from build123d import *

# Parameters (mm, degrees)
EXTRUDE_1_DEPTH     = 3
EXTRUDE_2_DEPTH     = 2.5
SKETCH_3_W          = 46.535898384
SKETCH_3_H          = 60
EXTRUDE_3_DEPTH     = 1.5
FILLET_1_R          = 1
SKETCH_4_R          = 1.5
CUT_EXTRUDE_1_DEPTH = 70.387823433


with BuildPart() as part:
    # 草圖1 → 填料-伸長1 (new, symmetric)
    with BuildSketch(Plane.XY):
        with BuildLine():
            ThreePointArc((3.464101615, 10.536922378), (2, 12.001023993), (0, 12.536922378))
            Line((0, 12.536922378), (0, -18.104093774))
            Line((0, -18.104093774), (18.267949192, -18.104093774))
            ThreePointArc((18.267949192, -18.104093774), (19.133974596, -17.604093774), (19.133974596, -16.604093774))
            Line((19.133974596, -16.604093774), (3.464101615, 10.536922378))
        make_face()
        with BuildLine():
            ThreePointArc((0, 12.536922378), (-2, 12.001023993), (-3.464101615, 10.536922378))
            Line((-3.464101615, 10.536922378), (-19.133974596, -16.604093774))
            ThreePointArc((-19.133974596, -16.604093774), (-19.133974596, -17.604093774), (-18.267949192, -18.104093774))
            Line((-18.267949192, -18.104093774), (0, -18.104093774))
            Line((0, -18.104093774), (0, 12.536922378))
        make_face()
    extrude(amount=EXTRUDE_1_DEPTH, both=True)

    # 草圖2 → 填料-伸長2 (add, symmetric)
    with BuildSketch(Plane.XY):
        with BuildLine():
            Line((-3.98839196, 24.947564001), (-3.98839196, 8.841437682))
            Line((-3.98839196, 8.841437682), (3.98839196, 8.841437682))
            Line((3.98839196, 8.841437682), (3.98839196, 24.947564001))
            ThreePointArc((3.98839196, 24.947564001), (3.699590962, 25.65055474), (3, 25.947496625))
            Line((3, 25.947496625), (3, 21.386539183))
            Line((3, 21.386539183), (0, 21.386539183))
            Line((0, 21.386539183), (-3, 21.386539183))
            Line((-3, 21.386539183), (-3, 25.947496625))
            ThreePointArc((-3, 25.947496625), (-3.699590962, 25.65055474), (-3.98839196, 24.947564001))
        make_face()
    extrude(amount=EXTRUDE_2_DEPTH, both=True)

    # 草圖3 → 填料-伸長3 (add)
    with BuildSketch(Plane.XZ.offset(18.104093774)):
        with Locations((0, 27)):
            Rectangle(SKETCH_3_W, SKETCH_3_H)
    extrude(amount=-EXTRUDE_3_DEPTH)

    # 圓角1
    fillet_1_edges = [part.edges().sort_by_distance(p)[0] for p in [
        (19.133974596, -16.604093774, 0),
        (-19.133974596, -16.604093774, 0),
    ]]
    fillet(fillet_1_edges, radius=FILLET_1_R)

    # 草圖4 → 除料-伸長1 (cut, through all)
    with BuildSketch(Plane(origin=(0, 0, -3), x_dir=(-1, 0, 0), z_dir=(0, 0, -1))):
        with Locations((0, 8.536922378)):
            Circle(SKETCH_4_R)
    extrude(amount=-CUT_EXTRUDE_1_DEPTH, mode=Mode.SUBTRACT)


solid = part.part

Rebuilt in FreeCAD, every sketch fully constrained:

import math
import FreeCAD as App
import Part
import Sketcher
from FreeCAD import Vector
Q = App.Units.Quantity


def edges_at(feature, points):
    """Names of the edges that pass closest to the given points."""
    edges = feature.Shape.Edges
    near = lambda p: min(range(len(edges)), key=lambda i: edges[i].distToShape(Part.Vertex(*p))[0])
    return sorted({f"Edge{near(p) + 1}" for p in points})


def add_polygon(sketch, points):
    """Adds a closed chain of lines whose ends are joined by coincident constraints."""
    first, n = sketch.GeometryCount, len(points)
    for a, b in zip(points, points[1:] + points[:1]):
        sketch.addGeometry(Part.LineSegment(App.Vector(*a, 0), App.Vector(*b, 0)), False)
    for i in range(n):
        sketch.addConstraint(Sketcher.Constraint("Coincident", first + i, 2, first + (i + 1) % n, 1))

doc = App.newDocument("Part")
body = doc.addObject("PartDesign::Body", "Body")

sketch1 = doc.addObject("Sketcher::SketchObject", "Sketch")
body.addObject(sketch1)
sketch1.AttachmentSupport = (doc.XY_Plane, [""])
sketch1.MapMode = "FlatFace"
sketch1.addGeometry([
    Part.ArcOfCircle(Part.Circle(Vector(0, 8.5, 0), Vector(0, 0, 1), 4), math.radians(30), math.radians(90)),
    Part.ArcOfCircle(Part.Circle(Vector(0, 8.5, 0), Vector(0, 0, 1), 4), math.radians(90), math.radians(150)),
    Part.LineSegment(Vector(-3.5, 10.5, 0), Vector(-19.1, -16.6, 0)),
    Part.ArcOfCircle(Part.Circle(Vector(-18.3, -17.1, 0), Vector(0, 0, 1), 1), math.radians(150), math.radians(270)),
    Part.LineSegment(Vector(-18.3, -18.1, 0), Vector(18.3, -18.1, 0)),
    Part.ArcOfCircle(Part.Circle(Vector(18.3, -17.1, 0), Vector(0, 0, 1), 1), math.radians(-90), math.radians(30)),
    Part.LineSegment(Vector(19.1, -16.6, 0), Vector(3.5, 10.5, 0)),
], False)
sketch1.addConstraint([
    Sketcher.Constraint("Tangent", 0, 2, 1, 1),
    Sketcher.Constraint("Tangent", 1, 2, 2, 1),
    Sketcher.Constraint("Tangent", 2, 2, 3, 1),
    Sketcher.Constraint("Tangent", 3, 2, 4, 1),
    Sketcher.Constraint("Tangent", 4, 2, 5, 1),
    Sketcher.Constraint("Tangent", 5, 2, 6, 1),
    Sketcher.Constraint("Tangent", 6, 2, 0, 1),
    Sketcher.Constraint("Horizontal", 4),
    Sketcher.Constraint("Equal", 0, 1),
    Sketcher.Constraint("Equal", 3, 5),
    Sketcher.Constraint("Symmetric", 2, 2, 5, 2, -2),
    Sketcher.Constraint("PointOnObject", 0, 2, -2),
    Sketcher.Constraint("Radius", 0, 4.0),
    Sketcher.Constraint("Radius", 3, 1.0),
    Sketcher.Constraint("Angle", 2, Q("-120 deg")),
    Sketcher.Constraint("DistanceX", 4, 1, 4, 2, 36.535898),
    Sketcher.Constraint("DistanceY", -1, 1, 0, 3, 8.536922),
])
pad1 = doc.addObject("PartDesign::Pad", "Pad")
body.addObject(pad1)
pad1.Profile = sketch1
pad1.Length = 6
pad1.Midplane = True

sketch2 = doc.addObject("Sketcher::SketchObject", "Sketch001")
body.addObject(sketch2)
sketch2.AttachmentSupport = (doc.XY_Plane, [""])
sketch2.MapMode = "FlatFace"
sketch2.addGeometry([
    Part.LineSegment(Vector(-4, 24.9, 0), Vector(-4, 8.8, 0)),
    Part.LineSegment(Vector(-4, 8.8, 0), Vector(4, 8.8, 0)),
    Part.LineSegment(Vector(4, 8.8, 0), Vector(4, 24.9, 0)),
    Part.ArcOfCircle(Part.Circle(Vector(3, 24.9, 0), Vector(0, 0, 1), 1), math.radians(0), math.radians(89)),
    Part.LineSegment(Vector(3, 25.9, 0), Vector(3, 21.4, 0)),
    Part.LineSegment(Vector(3, 21.4, 0), Vector(-3, 21.4, 0)),
    Part.LineSegment(Vector(-3, 21.4, 0), Vector(-3, 25.9, 0)),
    Part.ArcOfCircle(Part.Circle(Vector(-3, 24.9, 0), Vector(0, 0, 1), 1), math.radians(91), math.radians(180)),
], False)
sketch2.addConstraint([
    Sketcher.Constraint("Coincident", 0, 2, 1, 1),
    Sketcher.Constraint("Coincident", 1, 2, 2, 1),
    Sketcher.Constraint("Tangent", 2, 2, 3, 1),
    Sketcher.Constraint("Coincident", 3, 2, 4, 1),
    Sketcher.Constraint("Coincident", 4, 2, 5, 1),
    Sketcher.Constraint("Coincident", 5, 2, 6, 1),
    Sketcher.Constraint("Coincident", 6, 2, 7, 1),
    Sketcher.Constraint("Tangent", 7, 2, 0, 1),
    Sketcher.Constraint("Vertical", 0),
    Sketcher.Constraint("Horizontal", 1),
    Sketcher.Constraint("Vertical", 2),
    Sketcher.Constraint("Vertical", 4),
    Sketcher.Constraint("Horizontal", 5),
    Sketcher.Constraint("Vertical", 6),
    Sketcher.Constraint("Equal", 3, 7),
    Sketcher.Constraint("Symmetric", 3, 3, 7, 3, -2),
    Sketcher.Constraint("Horizontal", 3, 2, 6, 2),
    Sketcher.Constraint("Radius", 3, 1.0),
    Sketcher.Constraint("DistanceX", 5, 2, 5, 1, 6.0),
    Sketcher.Constraint("DistanceY", 1, 2, 4, 2, 12.545102),
    Sketcher.Constraint("DistanceX", 1, 1, 1, 2, 7.976784),
    Sketcher.Constraint("DistanceY", 0, 2, 0, 1, 16.106126),
    Sketcher.Constraint("DistanceY", -1, 1, 4, 2, 21.386539),
])
pad2 = doc.addObject("PartDesign::Pad", "Pad001")
body.addObject(pad2)
pad2.Profile = sketch2
pad2.Length = 5
pad2.Midplane = True

sketch3 = doc.addObject("Sketcher::SketchObject", "Sketch002")
body.addObject(sketch3)
sketch3.AttachmentSupport = (doc.XZ_Plane, [""])
sketch3.MapMode = "FlatFace"
sketch3.AttachmentOffset = App.Placement(Vector(0, 0, 18.104094), App.Rotation())
add_polygon(sketch3, [(-23, 57), (-23, -3), (23, -3), (23, 57)])
sketch3.addConstraint([
    Sketcher.Constraint("Vertical", 0),
    Sketcher.Constraint("Horizontal", 1),
    Sketcher.Constraint("Vertical", 2),
    Sketcher.Constraint("Horizontal", 3),
    Sketcher.Constraint("DistanceY", 0, 2, 0, 1, 60.0),
    Sketcher.Constraint("DistanceY", 0, 2, -1, 1, 3.0),
    Sketcher.Constraint("DistanceX", 1, 1, 1, 2, 46.535898),
    Sketcher.Constraint("DistanceX", 0, 2, -1, 1, 23.267949),
])
pad3 = doc.addObject("PartDesign::Pad", "Pad002")
body.addObject(pad3)
pad3.Profile = sketch3
pad3.Length = 1.5
pad3.Reversed = True
doc.recompute()

fillet = doc.addObject("PartDesign::Fillet", "Fillet")
body.addObject(fillet)
fillet.Base = (pad3, edges_at(pad3, [(19.134, -16.604, 0), (-19.134, -16.604, 0)]))
fillet.Radius = 1

sketch4 = doc.addObject("Sketcher::SketchObject", "Sketch003")
body.addObject(sketch4)
sketch4.AttachmentSupport = (doc.XY_Plane, [""])
sketch4.MapMode = "FlatFace"
sketch4.AttachmentOffset = App.Placement(Vector(0, 0, -3), App.Rotation())
sketch4.addGeometry(Part.Circle(Vector(0, 8.5, 0), Vector(0, 0, 1), 1.5), False)
sketch4.addConstraint([
    Sketcher.Constraint("PointOnObject", 0, 3, -2),
    Sketcher.Constraint("Diameter", 0, 3.0),
    Sketcher.Constraint("DistanceY", -1, 1, 0, 3, 8.536922),
])
pocket1 = doc.addObject("PartDesign::Pocket", "Pocket")
body.addObject(pocket1)
pocket1.Profile = sketch4
pocket1.Type = "ThroughAll"
pocket1.Reversed = True

doc.recompute()
